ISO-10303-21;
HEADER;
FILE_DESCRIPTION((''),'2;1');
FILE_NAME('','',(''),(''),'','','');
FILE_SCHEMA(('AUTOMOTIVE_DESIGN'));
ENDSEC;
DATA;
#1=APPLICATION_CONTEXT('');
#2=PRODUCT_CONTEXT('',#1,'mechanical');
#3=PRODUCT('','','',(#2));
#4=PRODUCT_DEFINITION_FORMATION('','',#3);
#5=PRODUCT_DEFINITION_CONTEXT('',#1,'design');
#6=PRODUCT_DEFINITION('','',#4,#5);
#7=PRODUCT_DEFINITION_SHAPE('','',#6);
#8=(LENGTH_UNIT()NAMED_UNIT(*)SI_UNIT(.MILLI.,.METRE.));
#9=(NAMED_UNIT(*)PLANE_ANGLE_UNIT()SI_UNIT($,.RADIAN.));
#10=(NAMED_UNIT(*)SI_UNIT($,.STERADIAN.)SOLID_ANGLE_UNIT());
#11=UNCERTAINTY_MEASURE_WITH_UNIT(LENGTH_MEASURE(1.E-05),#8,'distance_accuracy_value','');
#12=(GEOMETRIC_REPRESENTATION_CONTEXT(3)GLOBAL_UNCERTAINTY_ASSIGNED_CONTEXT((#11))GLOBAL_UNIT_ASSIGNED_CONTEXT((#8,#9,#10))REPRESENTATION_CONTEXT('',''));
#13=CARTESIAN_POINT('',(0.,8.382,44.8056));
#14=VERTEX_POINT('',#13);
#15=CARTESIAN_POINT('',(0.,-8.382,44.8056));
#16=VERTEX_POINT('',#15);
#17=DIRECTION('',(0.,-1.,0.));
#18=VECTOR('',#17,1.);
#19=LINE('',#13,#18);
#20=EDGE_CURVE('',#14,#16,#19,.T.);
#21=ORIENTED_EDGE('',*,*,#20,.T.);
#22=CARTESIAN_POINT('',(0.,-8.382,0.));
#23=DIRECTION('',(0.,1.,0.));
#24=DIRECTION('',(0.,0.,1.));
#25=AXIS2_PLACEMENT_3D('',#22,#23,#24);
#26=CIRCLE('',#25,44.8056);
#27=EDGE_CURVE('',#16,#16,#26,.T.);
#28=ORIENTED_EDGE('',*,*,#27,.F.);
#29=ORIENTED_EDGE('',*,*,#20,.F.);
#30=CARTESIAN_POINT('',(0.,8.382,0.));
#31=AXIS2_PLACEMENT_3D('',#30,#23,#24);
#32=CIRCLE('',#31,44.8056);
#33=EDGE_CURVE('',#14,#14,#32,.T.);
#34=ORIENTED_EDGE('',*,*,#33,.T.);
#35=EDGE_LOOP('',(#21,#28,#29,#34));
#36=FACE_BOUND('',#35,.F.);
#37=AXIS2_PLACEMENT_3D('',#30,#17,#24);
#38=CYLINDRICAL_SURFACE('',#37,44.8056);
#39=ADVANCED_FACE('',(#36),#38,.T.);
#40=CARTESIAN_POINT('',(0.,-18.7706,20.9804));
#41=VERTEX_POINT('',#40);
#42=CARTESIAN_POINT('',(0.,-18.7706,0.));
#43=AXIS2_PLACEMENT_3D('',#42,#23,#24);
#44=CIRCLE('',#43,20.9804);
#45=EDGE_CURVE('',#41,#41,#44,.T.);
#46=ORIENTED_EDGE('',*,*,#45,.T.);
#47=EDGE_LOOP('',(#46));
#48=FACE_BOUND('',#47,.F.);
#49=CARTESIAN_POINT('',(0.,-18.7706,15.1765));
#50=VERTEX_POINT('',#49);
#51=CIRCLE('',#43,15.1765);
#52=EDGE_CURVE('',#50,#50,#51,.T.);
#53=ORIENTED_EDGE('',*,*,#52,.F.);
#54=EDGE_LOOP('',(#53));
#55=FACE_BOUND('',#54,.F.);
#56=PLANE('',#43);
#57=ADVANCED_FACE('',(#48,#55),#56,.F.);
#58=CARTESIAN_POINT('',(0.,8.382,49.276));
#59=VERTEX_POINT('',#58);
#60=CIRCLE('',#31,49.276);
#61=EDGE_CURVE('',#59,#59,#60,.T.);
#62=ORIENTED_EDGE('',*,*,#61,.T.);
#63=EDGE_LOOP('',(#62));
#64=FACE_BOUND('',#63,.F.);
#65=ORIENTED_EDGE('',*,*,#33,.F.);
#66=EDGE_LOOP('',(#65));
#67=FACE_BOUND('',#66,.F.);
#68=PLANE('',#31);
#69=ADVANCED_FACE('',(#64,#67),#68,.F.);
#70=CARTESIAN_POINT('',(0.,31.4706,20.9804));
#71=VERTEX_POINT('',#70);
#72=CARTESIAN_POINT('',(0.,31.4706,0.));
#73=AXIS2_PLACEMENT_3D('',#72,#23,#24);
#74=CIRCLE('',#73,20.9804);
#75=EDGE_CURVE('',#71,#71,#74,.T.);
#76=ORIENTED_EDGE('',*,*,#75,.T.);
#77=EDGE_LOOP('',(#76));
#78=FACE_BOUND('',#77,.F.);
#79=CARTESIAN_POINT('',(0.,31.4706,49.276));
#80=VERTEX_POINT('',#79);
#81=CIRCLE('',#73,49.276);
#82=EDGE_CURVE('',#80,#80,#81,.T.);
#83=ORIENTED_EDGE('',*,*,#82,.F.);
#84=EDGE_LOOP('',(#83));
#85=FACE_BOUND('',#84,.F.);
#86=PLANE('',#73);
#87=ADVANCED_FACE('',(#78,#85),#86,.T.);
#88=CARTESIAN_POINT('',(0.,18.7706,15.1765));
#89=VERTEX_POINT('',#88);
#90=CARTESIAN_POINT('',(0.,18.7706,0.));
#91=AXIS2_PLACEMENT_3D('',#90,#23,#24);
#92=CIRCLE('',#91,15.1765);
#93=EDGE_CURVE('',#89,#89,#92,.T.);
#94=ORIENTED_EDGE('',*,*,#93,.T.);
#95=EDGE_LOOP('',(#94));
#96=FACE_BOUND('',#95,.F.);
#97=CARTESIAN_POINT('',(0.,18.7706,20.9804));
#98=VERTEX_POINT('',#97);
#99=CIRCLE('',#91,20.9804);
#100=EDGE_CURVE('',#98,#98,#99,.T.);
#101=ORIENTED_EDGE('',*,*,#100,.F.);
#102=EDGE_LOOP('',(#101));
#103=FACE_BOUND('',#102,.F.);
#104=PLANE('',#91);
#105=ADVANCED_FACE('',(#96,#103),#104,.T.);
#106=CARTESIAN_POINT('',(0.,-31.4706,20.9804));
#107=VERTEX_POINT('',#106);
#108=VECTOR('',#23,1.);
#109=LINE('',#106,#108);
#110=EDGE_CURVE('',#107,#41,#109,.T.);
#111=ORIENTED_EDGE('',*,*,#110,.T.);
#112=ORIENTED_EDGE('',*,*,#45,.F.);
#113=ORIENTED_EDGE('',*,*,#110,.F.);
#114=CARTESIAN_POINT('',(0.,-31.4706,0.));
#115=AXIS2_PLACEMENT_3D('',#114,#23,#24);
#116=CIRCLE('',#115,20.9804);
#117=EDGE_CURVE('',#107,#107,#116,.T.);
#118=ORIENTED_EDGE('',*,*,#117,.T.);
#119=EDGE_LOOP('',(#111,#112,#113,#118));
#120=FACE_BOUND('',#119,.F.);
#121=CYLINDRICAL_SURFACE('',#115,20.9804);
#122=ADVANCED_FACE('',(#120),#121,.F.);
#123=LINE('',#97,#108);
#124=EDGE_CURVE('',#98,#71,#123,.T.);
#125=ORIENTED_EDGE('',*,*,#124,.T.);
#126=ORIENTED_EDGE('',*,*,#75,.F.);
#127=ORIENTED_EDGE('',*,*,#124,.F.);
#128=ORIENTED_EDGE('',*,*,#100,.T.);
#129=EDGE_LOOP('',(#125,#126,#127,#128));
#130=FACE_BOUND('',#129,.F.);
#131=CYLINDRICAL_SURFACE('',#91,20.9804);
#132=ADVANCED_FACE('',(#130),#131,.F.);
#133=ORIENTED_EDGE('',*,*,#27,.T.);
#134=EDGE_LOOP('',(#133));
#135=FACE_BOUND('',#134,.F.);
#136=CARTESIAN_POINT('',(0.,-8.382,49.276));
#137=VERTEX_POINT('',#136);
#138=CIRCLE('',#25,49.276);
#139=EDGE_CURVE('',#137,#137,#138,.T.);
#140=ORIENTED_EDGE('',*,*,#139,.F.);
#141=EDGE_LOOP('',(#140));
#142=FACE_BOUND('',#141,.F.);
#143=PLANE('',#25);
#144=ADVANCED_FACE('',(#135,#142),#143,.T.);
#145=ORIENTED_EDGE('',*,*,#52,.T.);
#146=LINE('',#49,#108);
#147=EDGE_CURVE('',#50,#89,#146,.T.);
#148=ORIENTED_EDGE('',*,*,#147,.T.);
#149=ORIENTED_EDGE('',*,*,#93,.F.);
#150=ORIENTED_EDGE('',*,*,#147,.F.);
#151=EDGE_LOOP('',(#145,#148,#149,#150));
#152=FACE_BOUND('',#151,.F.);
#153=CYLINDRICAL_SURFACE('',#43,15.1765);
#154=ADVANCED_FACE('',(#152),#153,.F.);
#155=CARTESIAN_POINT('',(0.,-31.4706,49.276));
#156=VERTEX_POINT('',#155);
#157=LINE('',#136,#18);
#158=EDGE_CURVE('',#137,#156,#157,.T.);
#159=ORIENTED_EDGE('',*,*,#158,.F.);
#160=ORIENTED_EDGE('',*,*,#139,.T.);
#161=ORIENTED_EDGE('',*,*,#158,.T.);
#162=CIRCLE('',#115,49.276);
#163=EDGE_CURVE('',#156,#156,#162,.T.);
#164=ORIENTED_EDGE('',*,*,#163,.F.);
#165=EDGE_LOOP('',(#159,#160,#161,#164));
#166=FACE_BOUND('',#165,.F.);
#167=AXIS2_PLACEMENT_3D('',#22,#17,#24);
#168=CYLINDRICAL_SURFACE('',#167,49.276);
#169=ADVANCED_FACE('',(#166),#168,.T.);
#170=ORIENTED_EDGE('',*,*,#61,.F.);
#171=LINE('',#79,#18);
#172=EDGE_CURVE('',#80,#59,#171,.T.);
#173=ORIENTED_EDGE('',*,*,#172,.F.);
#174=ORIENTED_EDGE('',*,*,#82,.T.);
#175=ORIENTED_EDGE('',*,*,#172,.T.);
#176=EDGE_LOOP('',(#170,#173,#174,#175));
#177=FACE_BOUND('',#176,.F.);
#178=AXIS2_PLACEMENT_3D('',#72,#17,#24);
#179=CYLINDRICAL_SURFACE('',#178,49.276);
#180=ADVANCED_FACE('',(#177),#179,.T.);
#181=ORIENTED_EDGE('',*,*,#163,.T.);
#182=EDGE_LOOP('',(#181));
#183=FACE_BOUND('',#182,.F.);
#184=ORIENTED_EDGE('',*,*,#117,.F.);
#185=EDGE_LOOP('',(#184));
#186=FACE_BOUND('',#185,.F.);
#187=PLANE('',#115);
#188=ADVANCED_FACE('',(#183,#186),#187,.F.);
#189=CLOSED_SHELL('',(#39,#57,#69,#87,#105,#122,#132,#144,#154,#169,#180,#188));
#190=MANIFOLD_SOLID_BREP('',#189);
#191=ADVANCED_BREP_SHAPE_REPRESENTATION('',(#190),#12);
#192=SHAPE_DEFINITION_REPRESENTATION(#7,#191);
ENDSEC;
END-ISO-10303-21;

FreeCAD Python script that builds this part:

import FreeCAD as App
import Part
import Sketcher
from FreeCAD import Vector
Q = App.Units.Quantity


def add_polygon(sketch, points):
    """Adds a closed chain of lines whose ends are joined by coincident constraints."""
    first, n = sketch.GeometryCount, len(points)
    for a, b in zip(points, points[1:] + points[:1]):
        sketch.addGeometry(Part.LineSegment(App.Vector(*a, 0), App.Vector(*b, 0)), False)
    for i in range(n):
        sketch.addConstraint(Sketcher.Constraint("Coincident", first + i, 2, first + (i + 1) % n, 1))

doc = App.newDocument("Part")
body = doc.addObject("PartDesign::Body", "Body")

sketch1 = body.newObject("Sketcher::SketchObject", "Sketch")
sketch1.AttachmentSupport = (doc.getObject("YZ_Plane"), [""])
sketch1.MapMode = "FlatFace"
add_polygon(sketch1, [(-18.7706, 15.1765), (18.7706, 15.1765), (18.7706, 20.9804), (31.4706, 20.9804), (31.4706, 49.276), (8.382, 49.276), (8.382, 44.8056), (-8.382, 44.8056), (-8.382, 49.276), (-31.4706, 49.276), (-31.4706, 20.9804), (-18.7706, 20.9804)])
sketch1.addConstraint([
    Sketcher.Constraint("Horizontal", 0),
    Sketcher.Constraint("Vertical", 1),
    Sketcher.Constraint("Horizontal", 2),
    Sketcher.Constraint("Vertical", 3),
    Sketcher.Constraint("Horizontal", 4),
    Sketcher.Constraint("Vertical", 5),
    Sketcher.Constraint("Horizontal", 6),
    Sketcher.Constraint("Vertical", 7),
    Sketcher.Constraint("Horizontal", 8),
    Sketcher.Constraint("Vertical", 9),
    Sketcher.Constraint("Horizontal", 10),
    Sketcher.Constraint("Vertical", 11),
    Sketcher.Constraint("Symmetric", 4, 2, 7, 2, -2),
    Sketcher.Constraint("Symmetric", 2, 2, 9, 2, -2),
    Sketcher.Constraint("Equal", 2, 10),
    Sketcher.Constraint("DistanceX", 2, 1, 2, 2, Q("0.5 in")),
    Sketcher.Constraint("DistanceX", 6, 2, 6, 1, Q("0.66 in")),
    Sketcher.Constraint("DistanceX", 0, 1, 0, 2, Q("1.478 in")),
    Sketcher.Constraint("DistanceY", 3, 1, 3, 2, Q("1.114 in")),
    Sketcher.Constraint("DistanceY", 5, 2, 5, 1, Q("0.176 in")),
    Sketcher.Constraint("DistanceY", -1, 1, 3, 2, Q("1.94 in")),
    Sketcher.Constraint("DistanceY", 1, 1, 1, 2, Q("0.2285 in")),
])
revolution = body.newObject("PartDesign::Revolution", "Revolution")
revolution.Profile = sketch1
revolution.ReferenceAxis = (sketch1, ["H_Axis"])
revolution.Angle = 360

doc.recompute()
